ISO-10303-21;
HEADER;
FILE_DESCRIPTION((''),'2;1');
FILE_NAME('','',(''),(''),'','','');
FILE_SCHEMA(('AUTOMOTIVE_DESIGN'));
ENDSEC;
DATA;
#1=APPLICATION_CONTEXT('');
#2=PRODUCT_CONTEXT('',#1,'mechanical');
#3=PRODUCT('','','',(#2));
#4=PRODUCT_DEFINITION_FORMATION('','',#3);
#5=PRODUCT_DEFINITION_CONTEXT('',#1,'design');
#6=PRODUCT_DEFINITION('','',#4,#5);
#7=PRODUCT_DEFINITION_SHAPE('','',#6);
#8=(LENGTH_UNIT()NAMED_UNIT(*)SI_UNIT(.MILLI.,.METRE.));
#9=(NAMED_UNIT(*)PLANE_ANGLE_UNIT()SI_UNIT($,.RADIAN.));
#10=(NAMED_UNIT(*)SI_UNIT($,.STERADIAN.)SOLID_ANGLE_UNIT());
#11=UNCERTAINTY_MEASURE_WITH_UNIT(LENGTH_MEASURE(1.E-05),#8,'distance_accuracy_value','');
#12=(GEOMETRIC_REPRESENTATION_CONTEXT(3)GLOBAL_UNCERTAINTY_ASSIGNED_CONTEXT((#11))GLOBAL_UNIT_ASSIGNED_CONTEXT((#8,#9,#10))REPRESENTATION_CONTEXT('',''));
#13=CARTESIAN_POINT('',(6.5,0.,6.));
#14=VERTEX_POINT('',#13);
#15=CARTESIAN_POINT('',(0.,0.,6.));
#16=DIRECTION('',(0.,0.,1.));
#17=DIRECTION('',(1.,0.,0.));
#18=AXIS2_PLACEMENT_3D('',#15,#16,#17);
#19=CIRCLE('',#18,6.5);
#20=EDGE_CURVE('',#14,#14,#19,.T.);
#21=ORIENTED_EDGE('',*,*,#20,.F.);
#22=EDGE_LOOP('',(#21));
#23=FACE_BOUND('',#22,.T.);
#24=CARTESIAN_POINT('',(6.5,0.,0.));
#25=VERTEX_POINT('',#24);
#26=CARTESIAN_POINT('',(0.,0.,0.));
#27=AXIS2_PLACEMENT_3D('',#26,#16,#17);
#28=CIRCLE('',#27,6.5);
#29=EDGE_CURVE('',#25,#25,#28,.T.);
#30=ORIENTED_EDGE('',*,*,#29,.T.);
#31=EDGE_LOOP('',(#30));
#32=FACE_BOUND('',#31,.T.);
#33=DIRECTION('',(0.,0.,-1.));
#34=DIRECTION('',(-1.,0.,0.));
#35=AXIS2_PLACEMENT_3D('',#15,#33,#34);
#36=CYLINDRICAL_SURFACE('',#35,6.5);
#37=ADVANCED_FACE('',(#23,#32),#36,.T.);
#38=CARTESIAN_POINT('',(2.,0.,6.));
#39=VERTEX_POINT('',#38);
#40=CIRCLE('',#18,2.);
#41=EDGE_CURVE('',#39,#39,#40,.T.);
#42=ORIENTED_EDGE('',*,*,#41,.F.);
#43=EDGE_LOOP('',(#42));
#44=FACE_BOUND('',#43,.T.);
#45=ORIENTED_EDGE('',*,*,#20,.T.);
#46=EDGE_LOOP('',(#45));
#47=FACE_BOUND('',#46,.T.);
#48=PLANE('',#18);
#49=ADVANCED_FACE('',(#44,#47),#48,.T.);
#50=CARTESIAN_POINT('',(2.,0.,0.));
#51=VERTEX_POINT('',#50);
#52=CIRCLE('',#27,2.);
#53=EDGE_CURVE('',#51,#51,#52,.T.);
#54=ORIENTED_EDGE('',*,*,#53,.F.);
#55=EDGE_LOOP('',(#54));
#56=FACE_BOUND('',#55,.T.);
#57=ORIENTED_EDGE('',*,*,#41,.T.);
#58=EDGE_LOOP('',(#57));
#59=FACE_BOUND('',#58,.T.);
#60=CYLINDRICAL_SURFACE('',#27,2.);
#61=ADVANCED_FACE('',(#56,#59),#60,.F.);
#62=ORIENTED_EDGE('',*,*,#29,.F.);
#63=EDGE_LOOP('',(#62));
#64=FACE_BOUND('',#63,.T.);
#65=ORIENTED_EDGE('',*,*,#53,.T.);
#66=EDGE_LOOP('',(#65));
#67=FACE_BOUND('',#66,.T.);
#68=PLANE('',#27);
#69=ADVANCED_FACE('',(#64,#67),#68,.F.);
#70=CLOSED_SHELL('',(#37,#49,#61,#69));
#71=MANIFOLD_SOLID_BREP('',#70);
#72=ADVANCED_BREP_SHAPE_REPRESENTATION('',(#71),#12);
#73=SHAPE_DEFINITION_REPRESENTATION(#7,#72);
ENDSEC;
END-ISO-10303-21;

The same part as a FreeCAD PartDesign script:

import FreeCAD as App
import Part
import Sketcher
Q = App.Units.Quantity

doc = App.newDocument("Part")
params = doc.addObject("Spreadsheet::Sheet", "Params")
for row, (alias, value) in enumerate([
    ("sketch1_diameter", "13 mm"),
    ("pad1_length", "6 mm"),
    ("sketch2_diameter", "4 mm"),
    ("pocket1_length", "6 mm"),
], start=1):
    params.set(f"A{row}", alias)
    params.set(f"B{row}", "=" + value)
    params.setAlias(f"B{row}", alias)

body = doc.addObject("PartDesign::Body", "Body")

sketch1 = body.newObject("Sketcher::SketchObject", "Sketch")
sketch1.AttachmentSupport = (doc.getObject("XY_Plane"), [""])
sketch1.MapMode = "FlatFace"
sketch1.addGeometry(Part.Circle(App.Vector(0, 0, 0), App.Vector(0, 0, 1), 6.5), False)
sketch1.addConstraint([
    Sketcher.Constraint("Coincident", 0, 3, -1, 1),
    Sketcher.Constraint("Diameter", 0, Q("13 mm")),
])
sketch1.setExpression("Constraints[1]", "Params.sketch1_diameter")
pad1 = body.newObject("PartDesign::Pad", "Pad")
pad1.Profile = sketch1
pad1.setExpression("Length", "Params.pad1_length")

sketch2 = body.newObject("Sketcher::SketchObject", "Sketch001")
sketch2.AttachmentSupport = (doc.getObject("XY_Plane"), [""])
sketch2.MapMode = "FlatFace"
sketch2.AttachmentOffset = App.Placement(App.Vector(0, 0, 6), App.Rotation())
sketch2.addGeometry(Part.Circle(App.Vector(0, 0, 0), App.Vector(0, 0, 1), 2), False)
sketch2.addConstraint([
    Sketcher.Constraint("Coincident", 0, 3, -1, 1),
    Sketcher.Constraint("Diameter", 0, Q("4 mm")),
])
sketch2.setExpression("Constraints[1]", "Params.sketch2_diameter")
pocket1 = body.newObject("PartDesign::Pocket", "Pocket")
pocket1.Profile = sketch2
pocket1.setExpression("Length", "Params.pocket1_length")

doc.recompute()
